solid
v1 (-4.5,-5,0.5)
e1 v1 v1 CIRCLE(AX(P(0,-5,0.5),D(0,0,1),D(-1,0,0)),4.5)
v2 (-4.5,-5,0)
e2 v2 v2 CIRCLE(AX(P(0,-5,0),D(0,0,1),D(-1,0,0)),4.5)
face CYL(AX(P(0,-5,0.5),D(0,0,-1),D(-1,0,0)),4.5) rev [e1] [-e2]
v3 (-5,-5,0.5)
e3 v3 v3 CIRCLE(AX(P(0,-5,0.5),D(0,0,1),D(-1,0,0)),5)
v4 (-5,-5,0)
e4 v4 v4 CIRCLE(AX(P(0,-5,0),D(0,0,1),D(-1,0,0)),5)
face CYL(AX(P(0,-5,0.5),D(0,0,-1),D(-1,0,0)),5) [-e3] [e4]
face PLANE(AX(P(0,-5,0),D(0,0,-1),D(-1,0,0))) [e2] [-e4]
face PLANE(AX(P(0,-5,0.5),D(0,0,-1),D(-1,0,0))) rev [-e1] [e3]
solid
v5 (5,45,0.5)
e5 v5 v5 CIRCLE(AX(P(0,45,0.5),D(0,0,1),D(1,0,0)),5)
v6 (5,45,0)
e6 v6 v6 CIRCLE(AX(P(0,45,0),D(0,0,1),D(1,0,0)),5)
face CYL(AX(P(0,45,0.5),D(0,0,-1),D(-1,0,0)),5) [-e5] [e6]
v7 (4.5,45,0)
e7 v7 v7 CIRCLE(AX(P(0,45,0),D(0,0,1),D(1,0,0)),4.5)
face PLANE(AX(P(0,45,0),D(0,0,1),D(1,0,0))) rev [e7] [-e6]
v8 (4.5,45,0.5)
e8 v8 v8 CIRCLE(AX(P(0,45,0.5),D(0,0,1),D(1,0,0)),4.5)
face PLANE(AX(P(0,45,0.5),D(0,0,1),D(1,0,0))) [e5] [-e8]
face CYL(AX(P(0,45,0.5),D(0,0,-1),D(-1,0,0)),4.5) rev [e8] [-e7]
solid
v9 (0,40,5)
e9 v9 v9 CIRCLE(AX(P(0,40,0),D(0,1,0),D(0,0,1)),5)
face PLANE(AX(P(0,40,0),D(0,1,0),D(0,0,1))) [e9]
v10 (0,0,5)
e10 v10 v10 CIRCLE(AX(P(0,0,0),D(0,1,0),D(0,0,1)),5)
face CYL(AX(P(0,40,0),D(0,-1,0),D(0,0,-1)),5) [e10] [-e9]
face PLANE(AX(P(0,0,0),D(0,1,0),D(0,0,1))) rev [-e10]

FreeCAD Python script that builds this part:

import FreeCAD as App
import Part
import Sketcher
Q = App.Units.Quantity

doc = App.newDocument("Part")
body = doc.addObject("PartDesign::Body", "Body")

# Sketch on XZ plane
sketch1 = body.newObject("Sketcher::SketchObject", "Sketch")
sketch1.AttachmentSupport = (doc.getObject("XZ_Plane"), [""])
sketch1.MapMode = "FlatFace"
sketch1.addGeometry(Part.Circle(App.Vector(0, 0, 0), App.Vector(0, 0, 1), 5), False)
sketch1.addConstraint([
    Sketcher.Constraint("Coincident", 0, 3, -1, 1),
    Sketcher.Constraint("Diameter", 0, Q("10 mm")),
])
pad1 = body.newObject("PartDesign::Pad", "Pad")
pad1.Profile = sketch1
pad1.Length = 40
pad1.Reversed = True
body2 = doc.addObject("PartDesign::Body", "Body001")

# Sketch on XY plane
sketch2 = body2.newObject("Sketcher::SketchObject", "Sketch001")
sketch2.AttachmentSupport = (doc.getObject("XY_Plane001"), [""])
sketch2.MapMode = "FlatFace"
sketch2.addGeometry([
    Part.Circle(App.Vector(0, 45, 0), App.Vector(0, 0, 1), 5),
    Part.Circle(App.Vector(0, 45, 0), App.Vector(0, 0, 1), 4.5),
], False)
sketch2.addConstraint([
    Sketcher.Constraint("Coincident", 1, 3, 0, 3),
    Sketcher.Constraint("PointOnObject", 0, 3, -2),
    Sketcher.Constraint("Diameter", 0, Q("10 mm")),
    Sketcher.Constraint("Diameter", 1, Q("9 mm")),
    Sketcher.Constraint("DistanceY", -1, 1, 0, 3, Q("45 mm")),
])
pad2 = body2.newObject("PartDesign::Pad", "Pad001")
pad2.Profile = sketch2
pad2.Length = 0.5
body3 = doc.addObject("PartDesign::Body", "Body002")

# Sketch on XY plane
sketch3 = body3.newObject("Sketcher::SketchObject", "Sketch002")
sketch3.AttachmentSupport = (doc.getObject("XY_Plane002"), [""])
sketch3.MapMode = "FlatFace"
sketch3.addGeometry([
    Part.Circle(App.Vector(0, -5, 0), App.Vector(0, 0, 1), 5),
    Part.Circle(App.Vector(0, -5, 0), App.Vector(0, 0, 1), 4.5),
], False)
sketch3.addConstraint([
    Sketcher.Constraint("Coincident", 1, 3, 0, 3),
    Sketcher.Constraint("PointOnObject", 0, 3, -2),
    Sketcher.Constraint("Diameter", 0, Q("10 mm")),
    Sketcher.Constraint("Diameter", 1, Q("9 mm")),
    Sketcher.Constraint("DistanceY", 0, 3, -1, 1, Q("5 mm")),
])
pad3 = body3.newObject("PartDesign::Pad", "Pad002")
pad3.Profile = sketch3
pad3.Length = 0.5

doc.recompute()
